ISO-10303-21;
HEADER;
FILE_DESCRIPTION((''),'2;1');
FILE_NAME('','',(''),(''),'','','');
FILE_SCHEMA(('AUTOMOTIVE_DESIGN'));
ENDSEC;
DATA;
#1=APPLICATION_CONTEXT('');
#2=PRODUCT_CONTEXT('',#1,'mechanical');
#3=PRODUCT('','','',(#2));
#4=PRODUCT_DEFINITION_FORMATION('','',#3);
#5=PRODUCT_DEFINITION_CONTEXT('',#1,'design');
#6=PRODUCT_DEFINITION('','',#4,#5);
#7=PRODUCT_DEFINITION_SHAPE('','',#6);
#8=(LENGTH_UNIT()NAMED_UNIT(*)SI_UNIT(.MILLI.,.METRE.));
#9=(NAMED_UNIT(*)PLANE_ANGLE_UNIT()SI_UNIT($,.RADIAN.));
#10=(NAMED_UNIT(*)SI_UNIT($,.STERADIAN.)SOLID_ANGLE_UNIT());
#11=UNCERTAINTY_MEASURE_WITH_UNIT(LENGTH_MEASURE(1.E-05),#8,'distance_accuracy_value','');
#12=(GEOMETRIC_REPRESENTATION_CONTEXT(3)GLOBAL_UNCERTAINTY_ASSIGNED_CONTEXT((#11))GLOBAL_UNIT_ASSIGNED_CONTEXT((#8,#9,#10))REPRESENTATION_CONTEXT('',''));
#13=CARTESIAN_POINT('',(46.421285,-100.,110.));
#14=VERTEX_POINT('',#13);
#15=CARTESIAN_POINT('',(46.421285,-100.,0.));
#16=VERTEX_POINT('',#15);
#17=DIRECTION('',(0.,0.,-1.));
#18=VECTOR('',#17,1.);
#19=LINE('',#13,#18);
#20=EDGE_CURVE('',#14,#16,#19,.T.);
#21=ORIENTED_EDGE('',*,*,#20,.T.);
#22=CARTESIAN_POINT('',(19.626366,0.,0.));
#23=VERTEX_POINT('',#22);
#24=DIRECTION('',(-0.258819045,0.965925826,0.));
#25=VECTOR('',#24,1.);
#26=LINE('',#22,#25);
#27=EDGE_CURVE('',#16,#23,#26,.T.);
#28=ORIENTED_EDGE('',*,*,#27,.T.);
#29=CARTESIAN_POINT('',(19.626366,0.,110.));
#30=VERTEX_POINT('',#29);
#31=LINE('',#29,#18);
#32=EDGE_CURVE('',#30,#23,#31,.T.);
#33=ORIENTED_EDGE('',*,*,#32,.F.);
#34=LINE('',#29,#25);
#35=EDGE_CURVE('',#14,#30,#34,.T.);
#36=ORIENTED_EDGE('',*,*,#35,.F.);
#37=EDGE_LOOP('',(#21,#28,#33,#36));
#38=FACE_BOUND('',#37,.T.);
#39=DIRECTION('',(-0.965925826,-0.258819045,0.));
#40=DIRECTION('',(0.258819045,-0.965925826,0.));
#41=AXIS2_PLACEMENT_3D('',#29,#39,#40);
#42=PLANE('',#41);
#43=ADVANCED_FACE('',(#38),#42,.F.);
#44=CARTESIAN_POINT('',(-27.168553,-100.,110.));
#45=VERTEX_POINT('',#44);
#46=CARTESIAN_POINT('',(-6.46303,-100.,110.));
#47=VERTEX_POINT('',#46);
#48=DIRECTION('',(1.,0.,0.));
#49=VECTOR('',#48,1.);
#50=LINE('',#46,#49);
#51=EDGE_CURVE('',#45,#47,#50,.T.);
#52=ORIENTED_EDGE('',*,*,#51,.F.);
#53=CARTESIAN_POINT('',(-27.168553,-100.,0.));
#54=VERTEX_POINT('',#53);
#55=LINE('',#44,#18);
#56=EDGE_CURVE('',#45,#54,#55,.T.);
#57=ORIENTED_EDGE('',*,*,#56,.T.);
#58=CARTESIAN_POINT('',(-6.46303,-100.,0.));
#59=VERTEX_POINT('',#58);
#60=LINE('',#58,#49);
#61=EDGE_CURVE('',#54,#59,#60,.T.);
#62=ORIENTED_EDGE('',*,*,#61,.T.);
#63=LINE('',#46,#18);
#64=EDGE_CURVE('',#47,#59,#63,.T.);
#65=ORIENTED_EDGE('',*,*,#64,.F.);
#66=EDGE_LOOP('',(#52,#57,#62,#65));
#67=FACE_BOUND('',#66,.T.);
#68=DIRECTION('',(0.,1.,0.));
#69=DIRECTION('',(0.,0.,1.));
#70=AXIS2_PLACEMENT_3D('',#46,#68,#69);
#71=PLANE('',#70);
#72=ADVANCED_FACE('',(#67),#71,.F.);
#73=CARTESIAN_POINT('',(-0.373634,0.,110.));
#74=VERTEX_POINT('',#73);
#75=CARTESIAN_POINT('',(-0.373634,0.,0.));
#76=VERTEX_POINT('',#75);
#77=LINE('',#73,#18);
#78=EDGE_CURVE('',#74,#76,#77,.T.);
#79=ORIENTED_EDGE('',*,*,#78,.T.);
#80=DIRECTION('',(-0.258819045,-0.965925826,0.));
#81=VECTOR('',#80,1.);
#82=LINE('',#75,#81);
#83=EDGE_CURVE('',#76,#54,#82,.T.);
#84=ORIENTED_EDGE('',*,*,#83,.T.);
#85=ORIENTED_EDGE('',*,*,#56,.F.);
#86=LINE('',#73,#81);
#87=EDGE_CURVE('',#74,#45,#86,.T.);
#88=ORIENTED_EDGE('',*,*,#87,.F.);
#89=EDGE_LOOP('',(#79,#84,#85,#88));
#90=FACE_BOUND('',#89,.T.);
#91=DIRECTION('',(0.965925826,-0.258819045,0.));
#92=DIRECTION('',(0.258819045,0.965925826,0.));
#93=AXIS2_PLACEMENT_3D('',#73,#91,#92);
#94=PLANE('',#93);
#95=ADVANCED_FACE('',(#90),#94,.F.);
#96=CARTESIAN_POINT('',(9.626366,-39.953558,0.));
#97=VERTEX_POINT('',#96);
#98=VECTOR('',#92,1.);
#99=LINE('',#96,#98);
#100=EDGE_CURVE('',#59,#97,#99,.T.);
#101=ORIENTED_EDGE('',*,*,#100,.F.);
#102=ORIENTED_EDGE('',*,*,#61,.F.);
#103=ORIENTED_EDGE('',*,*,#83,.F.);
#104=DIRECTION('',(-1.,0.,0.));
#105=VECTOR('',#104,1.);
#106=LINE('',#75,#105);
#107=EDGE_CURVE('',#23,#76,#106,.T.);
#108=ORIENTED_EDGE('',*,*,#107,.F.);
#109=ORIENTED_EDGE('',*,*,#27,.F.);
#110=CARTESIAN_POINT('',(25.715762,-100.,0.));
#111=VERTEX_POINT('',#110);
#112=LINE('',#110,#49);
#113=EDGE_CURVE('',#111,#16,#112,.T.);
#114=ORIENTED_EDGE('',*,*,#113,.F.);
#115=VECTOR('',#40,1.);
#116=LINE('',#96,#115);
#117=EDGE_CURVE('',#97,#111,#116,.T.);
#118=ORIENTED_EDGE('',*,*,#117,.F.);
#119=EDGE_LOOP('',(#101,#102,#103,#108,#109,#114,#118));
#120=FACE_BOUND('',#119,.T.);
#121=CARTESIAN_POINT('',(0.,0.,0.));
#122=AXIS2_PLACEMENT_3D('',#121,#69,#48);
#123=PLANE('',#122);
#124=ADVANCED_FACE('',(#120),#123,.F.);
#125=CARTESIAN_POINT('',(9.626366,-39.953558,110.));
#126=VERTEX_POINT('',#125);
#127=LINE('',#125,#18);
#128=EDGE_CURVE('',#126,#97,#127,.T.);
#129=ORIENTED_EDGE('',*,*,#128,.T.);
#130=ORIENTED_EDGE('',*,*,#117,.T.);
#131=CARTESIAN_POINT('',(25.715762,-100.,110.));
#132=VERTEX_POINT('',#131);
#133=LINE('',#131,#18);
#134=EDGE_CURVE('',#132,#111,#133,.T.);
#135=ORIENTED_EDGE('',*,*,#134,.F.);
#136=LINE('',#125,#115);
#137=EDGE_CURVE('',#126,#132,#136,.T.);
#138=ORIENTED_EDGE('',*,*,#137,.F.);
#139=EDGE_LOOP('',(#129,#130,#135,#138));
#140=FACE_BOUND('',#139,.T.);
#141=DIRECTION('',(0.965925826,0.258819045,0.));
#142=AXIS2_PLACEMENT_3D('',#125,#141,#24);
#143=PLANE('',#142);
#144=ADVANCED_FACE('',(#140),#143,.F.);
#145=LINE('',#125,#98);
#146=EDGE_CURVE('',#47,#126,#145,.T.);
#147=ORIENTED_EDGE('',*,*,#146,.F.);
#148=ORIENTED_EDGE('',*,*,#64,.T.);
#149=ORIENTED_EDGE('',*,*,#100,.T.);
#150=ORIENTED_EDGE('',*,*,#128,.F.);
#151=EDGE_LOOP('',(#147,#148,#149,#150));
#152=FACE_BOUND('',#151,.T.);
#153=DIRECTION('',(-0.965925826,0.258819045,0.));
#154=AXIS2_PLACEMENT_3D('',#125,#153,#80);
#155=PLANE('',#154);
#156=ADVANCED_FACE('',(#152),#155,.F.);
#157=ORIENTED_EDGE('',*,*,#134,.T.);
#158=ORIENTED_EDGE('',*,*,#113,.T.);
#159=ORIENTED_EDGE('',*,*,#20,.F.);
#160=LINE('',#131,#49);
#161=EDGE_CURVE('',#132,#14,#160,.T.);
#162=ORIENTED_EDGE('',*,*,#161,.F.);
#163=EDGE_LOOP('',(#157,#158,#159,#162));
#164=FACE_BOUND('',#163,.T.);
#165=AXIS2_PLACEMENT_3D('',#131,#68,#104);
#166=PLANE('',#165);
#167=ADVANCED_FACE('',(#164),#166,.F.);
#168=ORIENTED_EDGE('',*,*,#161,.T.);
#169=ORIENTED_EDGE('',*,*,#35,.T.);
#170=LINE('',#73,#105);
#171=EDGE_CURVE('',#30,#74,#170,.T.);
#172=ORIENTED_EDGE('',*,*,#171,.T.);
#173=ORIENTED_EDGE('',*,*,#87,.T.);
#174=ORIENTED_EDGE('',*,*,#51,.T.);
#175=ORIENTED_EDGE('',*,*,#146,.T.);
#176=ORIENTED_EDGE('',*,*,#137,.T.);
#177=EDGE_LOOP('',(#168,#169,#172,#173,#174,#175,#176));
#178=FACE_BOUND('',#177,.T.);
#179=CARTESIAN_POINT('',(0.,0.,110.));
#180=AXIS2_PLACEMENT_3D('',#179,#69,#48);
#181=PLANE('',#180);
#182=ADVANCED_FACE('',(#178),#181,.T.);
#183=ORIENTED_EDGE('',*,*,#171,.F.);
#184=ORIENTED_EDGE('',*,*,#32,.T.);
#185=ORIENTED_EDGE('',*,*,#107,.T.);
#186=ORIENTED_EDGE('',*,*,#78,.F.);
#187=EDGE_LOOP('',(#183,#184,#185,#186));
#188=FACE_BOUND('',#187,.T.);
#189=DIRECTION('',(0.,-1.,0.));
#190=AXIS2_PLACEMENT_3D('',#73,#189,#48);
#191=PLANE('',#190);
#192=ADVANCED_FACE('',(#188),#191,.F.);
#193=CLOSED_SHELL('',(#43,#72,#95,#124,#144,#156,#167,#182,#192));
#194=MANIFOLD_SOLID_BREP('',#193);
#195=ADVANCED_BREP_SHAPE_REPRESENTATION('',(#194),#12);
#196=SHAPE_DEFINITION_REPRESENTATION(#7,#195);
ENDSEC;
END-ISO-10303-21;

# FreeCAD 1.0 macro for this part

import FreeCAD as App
import Part
import Sketcher
Q = App.Units.Quantity

doc = App.newDocument("Part")
body = doc.addObject("PartDesign::Body", "Body")

sketch1 = body.newObject("Sketcher::SketchObject", "Sketch")
sketch1.AttachmentSupport = (doc.getObject("XY_Plane"), [""])
sketch1.MapMode = "FlatFace"
sketch1.addGeometry(Part.LineSegment(App.Vector(0, 0, 0), App.Vector(-27, -100, 0)), False)
sketch1.addGeometry(Part.LineSegment(App.Vector(-27, -100, 0), App.Vector(-6, -100, 0)), False)
sketch1.addGeometry(Part.LineSegment(App.Vector(-6, -100, 0), App.Vector(10, -40, 0)), False)
sketch1.addGeometry(Part.LineSegment(App.Vector(10, -40, 0), App.Vector(26, -100, 0)), False)
sketch1.addGeometry(Part.LineSegment(App.Vector(26, -100, 0), App.Vector(46, -100, 0)), False)
sketch1.addGeometry(Part.LineSegment(App.Vector(46, -100, 0), App.Vector(20, 0, 0)), False)
sketch1.addGeometry(Part.LineSegment(App.Vector(20, 0, 0), App.Vector(0, 0, 0)), False)
sketch1.addConstraint(Sketcher.Constraint("Coincident", 0, 2, 1, 1))
sketch1.addConstraint(Sketcher.Constraint("Coincident", 1, 2, 2, 1))
sketch1.addConstraint(Sketcher.Constraint("Coincident", 2, 2, 3, 1))
sketch1.addConstraint(Sketcher.Constraint("Coincident", 3, 2, 4, 1))
sketch1.addConstraint(Sketcher.Constraint("Coincident", 4, 2, 5, 1))
sketch1.addConstraint(Sketcher.Constraint("Coincident", 5, 2, 6, 1))
sketch1.addConstraint(Sketcher.Constraint("Coincident", 6, 2, 0, 1))
sketch1.addConstraint(Sketcher.Constraint("Horizontal", 1))
sketch1.addConstraint(Sketcher.Constraint("Horizontal", 4))
sketch1.addConstraint(Sketcher.Constraint("Horizontal", 6))
sketch1.addConstraint(Sketcher.Constraint("PointOnObject", 5, 2, -1))
sketch1.addConstraint(Sketcher.Constraint("Parallel", 0, 2))
sketch1.addConstraint(Sketcher.Constraint("Parallel", 3, 5))
sketch1.addConstraint(Sketcher.Constraint("Horizontal", 1, 2, 3, 2))
sketch1.addConstraint(Sketcher.Constraint("Equal", 1, 4))
sketch1.addConstraint(Sketcher.Constraint("Equal", 2, 3))
sketch1.addConstraint(Sketcher.Constraint("DistanceX", 6, 2, 6, 1, Q("20 mm")))
sketch1.addConstraint(Sketcher.Constraint("Angle", 0, Q("-105 deg")))
sketch1.addConstraint(Sketcher.Constraint("DistanceY", 0, 2, -1, 1, Q("100 mm")))
sketch1.addConstraint(Sketcher.Constraint("Distance", 2, Q("62.164651 mm")))
sketch1.addConstraint(Sketcher.Constraint("DistanceX", 1, 2, -1, 1, Q("6.46303 mm")))
pad1 = body.newObject("PartDesign::Pad", "Pad")
pad1.Profile = sketch1
pad1.Length = 110

doc.recompute()
